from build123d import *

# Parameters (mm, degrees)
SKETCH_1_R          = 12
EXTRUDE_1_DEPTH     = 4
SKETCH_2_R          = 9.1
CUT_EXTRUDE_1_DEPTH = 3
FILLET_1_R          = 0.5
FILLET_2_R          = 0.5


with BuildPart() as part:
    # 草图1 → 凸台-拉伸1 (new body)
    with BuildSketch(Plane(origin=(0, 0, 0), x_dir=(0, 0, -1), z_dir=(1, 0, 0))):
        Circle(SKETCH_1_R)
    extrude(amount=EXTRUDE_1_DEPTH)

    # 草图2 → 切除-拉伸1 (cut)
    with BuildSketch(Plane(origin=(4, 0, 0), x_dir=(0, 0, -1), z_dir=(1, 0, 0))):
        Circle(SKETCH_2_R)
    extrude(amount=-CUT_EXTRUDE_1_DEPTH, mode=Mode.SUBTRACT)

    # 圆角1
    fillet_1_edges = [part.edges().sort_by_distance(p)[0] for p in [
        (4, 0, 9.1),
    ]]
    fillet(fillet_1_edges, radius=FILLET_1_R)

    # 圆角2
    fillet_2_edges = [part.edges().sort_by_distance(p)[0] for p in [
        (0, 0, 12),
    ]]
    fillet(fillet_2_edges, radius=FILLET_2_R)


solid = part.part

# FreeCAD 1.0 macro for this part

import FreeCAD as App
import Part
import Sketcher

V = App.Vector


def edges_at(feature, points):
    """Names of the edges that pass closest to the given points."""
    edges = feature.Shape.Edges
    near = lambda p: min(range(len(edges)), key=lambda i: edges[i].distToShape(Part.Vertex(*p))[0])
    return sorted({f"Edge{near(p) + 1}" for p in points})

doc = App.newDocument("Part")
body = doc.addObject("PartDesign::Body", "Body")

sketch1 = doc.addObject("Sketcher::SketchObject", "Sketch")
body.addObject(sketch1)
sketch1.AttachmentSupport = (doc.YZ_Plane, [""])
sketch1.MapMode = "FlatFace"
sketch1.addGeometry(Part.Circle(V(0, 0, 0), V(0, 0, 1), 12), False)
sketch1.addConstraint(Sketcher.Constraint("Coincident", 0, 3, -1, 1))
sketch1.addConstraint(Sketcher.Constraint("Diameter", 0, 24.0))
pad1 = doc.addObject("PartDesign::Pad", "Pad")
body.addObject(pad1)
pad1.Profile = sketch1
pad1.Length = 4

sketch2 = doc.addObject("Sketcher::SketchObject", "Sketch001")
body.addObject(sketch2)
sketch2.AttachmentSupport = (doc.YZ_Plane, [""])
sketch2.MapMode = "FlatFace"
sketch2.AttachmentOffset = App.Placement(V(0, 0, 4), App.Rotation())
sketch2.addGeometry(Part.Circle(V(0, 0, 0), V(0, 0, 1), 9.1), False)
sketch2.addConstraint(Sketcher.Constraint("Coincident", 0, 3, -1, 1))
sketch2.addConstraint(Sketcher.Constraint("Diameter", 0, 18.2))
pocket1 = doc.addObject("PartDesign::Pocket", "Pocket")
body.addObject(pocket1)
pocket1.Profile = sketch2
pocket1.Length = 3
doc.recompute()

fillet = doc.addObject("PartDesign::Fillet", "Fillet")
body.addObject(fillet)
fillet.Base = (pocket1, edges_at(pocket1, [(4, 0, 9.1)]))
fillet.Radius = 0.5
doc.recompute()

fillet2 = doc.addObject("PartDesign::Fillet", "Fillet001")
body.addObject(fillet2)
fillet2.Base = (fillet, edges_at(fillet, [(0, 0, 12)]))
fillet2.Radius = 0.5

doc.recompute()
